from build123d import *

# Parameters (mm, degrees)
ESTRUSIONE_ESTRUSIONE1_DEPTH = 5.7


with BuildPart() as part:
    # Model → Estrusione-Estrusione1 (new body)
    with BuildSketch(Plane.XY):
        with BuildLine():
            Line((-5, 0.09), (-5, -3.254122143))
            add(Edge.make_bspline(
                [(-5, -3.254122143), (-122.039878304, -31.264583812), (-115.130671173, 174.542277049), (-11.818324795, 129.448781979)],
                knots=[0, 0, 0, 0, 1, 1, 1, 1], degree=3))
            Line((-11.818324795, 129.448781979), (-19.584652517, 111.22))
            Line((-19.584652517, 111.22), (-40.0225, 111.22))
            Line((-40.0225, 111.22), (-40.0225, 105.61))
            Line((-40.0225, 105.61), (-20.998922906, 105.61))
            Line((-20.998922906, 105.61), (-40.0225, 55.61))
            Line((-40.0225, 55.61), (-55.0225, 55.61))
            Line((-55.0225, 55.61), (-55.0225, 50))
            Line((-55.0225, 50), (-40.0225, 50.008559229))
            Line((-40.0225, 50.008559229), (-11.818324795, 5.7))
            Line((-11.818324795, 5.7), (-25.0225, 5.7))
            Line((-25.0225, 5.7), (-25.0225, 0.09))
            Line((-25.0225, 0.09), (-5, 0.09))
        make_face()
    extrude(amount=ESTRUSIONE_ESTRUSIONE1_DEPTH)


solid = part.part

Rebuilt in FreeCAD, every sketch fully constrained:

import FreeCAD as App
import Part
import Sketcher
from FreeCAD import Vector
Q = App.Units.Quantity

doc = App.newDocument("Part")
body = doc.addObject("PartDesign::Body", "Body")

# Sketch on XY plane
sketch1 = body.newObject("Sketcher::SketchObject", "Sketch")
sketch1.AttachmentSupport = (doc.getObject("XY_Plane"), [""])
sketch1.MapMode = "FlatFace"
sketch1.addGeometry([
    Part.LineSegment(Vector(-5, -3.254122, 0), Vector(-5, 0.09, 0)),  # 0
    Part.LineSegment(Vector(-5, 0.09, 0), Vector(-25.0225, 0.09, 0)),  # 1
    Part.LineSegment(Vector(-25.0225, 0.09, 0), Vector(-25.0225, 5.7, 0)),  # 2
    Part.LineSegment(Vector(-25.0225, 5.7, 0), Vector(-11.818325, 5.7, 0)),  # 3
    Part.LineSegment(Vector(-11.818325, 5.7, 0), Vector(-40.0225, 50.008559, 0)),  # 4
    Part.LineSegment(Vector(-40.0225, 50.008559, 0), Vector(-55.0225, 50, 0)),  # 5
    Part.LineSegment(Vector(-55.0225, 50, 0), Vector(-55.0225, 55.61, 0)),  # 6
    Part.LineSegment(Vector(-55.0225, 55.61, 0), Vector(-40.0225, 55.61, 0)),  # 7
    Part.LineSegment(Vector(-40.0225, 55.61, 0), Vector(-20.998923, 105.61, 0)),  # 8
    Part.LineSegment(Vector(-20.998923, 105.61, 0), Vector(-40.0225, 105.61, 0)),  # 9
    Part.LineSegment(Vector(-40.0225, 105.61, 0), Vector(-40.0225, 111.22, 0)),  # 10
    Part.LineSegment(Vector(-40.0225, 111.22, 0), Vector(-19.584653, 111.22, 0)),  # 11
    Part.LineSegment(Vector(-19.584653, 111.22, 0), Vector(-11.818325, 129.448782, 0)),  # 12
    Part.BSplineCurve([Vector(-5, -3.254122, 0), Vector(-122.039878, -31.264584, 0), Vector(-115.130671, 174.542277, 0), Vector(-11.818325, 129.448782, 0)], [4, 4], [0, 1], False, 3, [1, 1, 1, 1], False),  # 13
], False)
sketch1.addConstraint([
    Sketcher.Constraint("Block", 13),
    Sketcher.Constraint("Coincident", 0, 2, 1, 1),
    Sketcher.Constraint("Coincident", 1, 2, 2, 1),
    Sketcher.Constraint("Coincident", 2, 2, 3, 1),
    Sketcher.Constraint("Coincident", 3, 2, 4, 1),
    Sketcher.Constraint("Coincident", 4, 2, 5, 1),
    Sketcher.Constraint("Coincident", 5, 2, 6, 1),
    Sketcher.Constraint("Coincident", 6, 2, 7, 1),
    Sketcher.Constraint("Coincident", 7, 2, 8, 1),
    Sketcher.Constraint("Coincident", 8, 2, 9, 1),
    Sketcher.Constraint("Coincident", 9, 2, 10, 1),
    Sketcher.Constraint("Coincident", 10, 2, 11, 1),
    Sketcher.Constraint("Coincident", 11, 2, 12, 1),
    Sketcher.Constraint("Coincident", 12, 2, 13, 2),
    Sketcher.Constraint("Coincident", 13, 1, 0, 1),
    Sketcher.Constraint("Vertical", 0),
    Sketcher.Constraint("Horizontal", 1),
    Sketcher.Constraint("Vertical", 2),
    Sketcher.Constraint("Horizontal", 3),
    Sketcher.Constraint("Vertical", 6),
    Sketcher.Constraint("Horizontal", 7),
    Sketcher.Constraint("Horizontal", 9),
    Sketcher.Constraint("Vertical", 10),
    Sketcher.Constraint("Horizontal", 11),
    Sketcher.Constraint("Vertical", 4, 2, 7, 2),
    Sketcher.Constraint("Vertical", 7, 2, 9, 2),
    Sketcher.Constraint("Vertical", 3, 2, 12, 2),
    Sketcher.Constraint("Equal", 2, 6),
    Sketcher.Constraint("Equal", 6, 10),
    Sketcher.Constraint("DistanceX", 7, 1, 7, 2, Q("15 mm")),
    Sketcher.Constraint("DistanceY", -1, 1, 5, 2, Q("50 mm")),
    Sketcher.Constraint("DistanceX", 4, 2, 2, 2, Q("15 mm")),
    Sketcher.Constraint("DistanceY", 7, 2, 8, 2, Q("50 mm")),
    Sketcher.Constraint("DistanceY", 2, 1, 2, 2, Q("5.61 mm")),
    Sketcher.Constraint("DistanceY", -1, 1, 2, 2, Q("5.7 mm")),
    Sketcher.Constraint("DistanceX", 1, 2, 1, 1, Q("20.0225 mm")),
    Sketcher.Constraint("DistanceX", 8, 2, 12, 2, Q("9.180598 mm")),
    Sketcher.Constraint("DistanceX", 11, 1, 11, 2, Q("20.437847 mm")),
    Sketcher.Constraint("DistanceY", -1, 1, 4, 2, Q("50.008559 mm")),
])
pad1 = body.newObject("PartDesign::Pad", "Pad")
pad1.Profile = sketch1
pad1.Length = 5.7

doc.recompute()
